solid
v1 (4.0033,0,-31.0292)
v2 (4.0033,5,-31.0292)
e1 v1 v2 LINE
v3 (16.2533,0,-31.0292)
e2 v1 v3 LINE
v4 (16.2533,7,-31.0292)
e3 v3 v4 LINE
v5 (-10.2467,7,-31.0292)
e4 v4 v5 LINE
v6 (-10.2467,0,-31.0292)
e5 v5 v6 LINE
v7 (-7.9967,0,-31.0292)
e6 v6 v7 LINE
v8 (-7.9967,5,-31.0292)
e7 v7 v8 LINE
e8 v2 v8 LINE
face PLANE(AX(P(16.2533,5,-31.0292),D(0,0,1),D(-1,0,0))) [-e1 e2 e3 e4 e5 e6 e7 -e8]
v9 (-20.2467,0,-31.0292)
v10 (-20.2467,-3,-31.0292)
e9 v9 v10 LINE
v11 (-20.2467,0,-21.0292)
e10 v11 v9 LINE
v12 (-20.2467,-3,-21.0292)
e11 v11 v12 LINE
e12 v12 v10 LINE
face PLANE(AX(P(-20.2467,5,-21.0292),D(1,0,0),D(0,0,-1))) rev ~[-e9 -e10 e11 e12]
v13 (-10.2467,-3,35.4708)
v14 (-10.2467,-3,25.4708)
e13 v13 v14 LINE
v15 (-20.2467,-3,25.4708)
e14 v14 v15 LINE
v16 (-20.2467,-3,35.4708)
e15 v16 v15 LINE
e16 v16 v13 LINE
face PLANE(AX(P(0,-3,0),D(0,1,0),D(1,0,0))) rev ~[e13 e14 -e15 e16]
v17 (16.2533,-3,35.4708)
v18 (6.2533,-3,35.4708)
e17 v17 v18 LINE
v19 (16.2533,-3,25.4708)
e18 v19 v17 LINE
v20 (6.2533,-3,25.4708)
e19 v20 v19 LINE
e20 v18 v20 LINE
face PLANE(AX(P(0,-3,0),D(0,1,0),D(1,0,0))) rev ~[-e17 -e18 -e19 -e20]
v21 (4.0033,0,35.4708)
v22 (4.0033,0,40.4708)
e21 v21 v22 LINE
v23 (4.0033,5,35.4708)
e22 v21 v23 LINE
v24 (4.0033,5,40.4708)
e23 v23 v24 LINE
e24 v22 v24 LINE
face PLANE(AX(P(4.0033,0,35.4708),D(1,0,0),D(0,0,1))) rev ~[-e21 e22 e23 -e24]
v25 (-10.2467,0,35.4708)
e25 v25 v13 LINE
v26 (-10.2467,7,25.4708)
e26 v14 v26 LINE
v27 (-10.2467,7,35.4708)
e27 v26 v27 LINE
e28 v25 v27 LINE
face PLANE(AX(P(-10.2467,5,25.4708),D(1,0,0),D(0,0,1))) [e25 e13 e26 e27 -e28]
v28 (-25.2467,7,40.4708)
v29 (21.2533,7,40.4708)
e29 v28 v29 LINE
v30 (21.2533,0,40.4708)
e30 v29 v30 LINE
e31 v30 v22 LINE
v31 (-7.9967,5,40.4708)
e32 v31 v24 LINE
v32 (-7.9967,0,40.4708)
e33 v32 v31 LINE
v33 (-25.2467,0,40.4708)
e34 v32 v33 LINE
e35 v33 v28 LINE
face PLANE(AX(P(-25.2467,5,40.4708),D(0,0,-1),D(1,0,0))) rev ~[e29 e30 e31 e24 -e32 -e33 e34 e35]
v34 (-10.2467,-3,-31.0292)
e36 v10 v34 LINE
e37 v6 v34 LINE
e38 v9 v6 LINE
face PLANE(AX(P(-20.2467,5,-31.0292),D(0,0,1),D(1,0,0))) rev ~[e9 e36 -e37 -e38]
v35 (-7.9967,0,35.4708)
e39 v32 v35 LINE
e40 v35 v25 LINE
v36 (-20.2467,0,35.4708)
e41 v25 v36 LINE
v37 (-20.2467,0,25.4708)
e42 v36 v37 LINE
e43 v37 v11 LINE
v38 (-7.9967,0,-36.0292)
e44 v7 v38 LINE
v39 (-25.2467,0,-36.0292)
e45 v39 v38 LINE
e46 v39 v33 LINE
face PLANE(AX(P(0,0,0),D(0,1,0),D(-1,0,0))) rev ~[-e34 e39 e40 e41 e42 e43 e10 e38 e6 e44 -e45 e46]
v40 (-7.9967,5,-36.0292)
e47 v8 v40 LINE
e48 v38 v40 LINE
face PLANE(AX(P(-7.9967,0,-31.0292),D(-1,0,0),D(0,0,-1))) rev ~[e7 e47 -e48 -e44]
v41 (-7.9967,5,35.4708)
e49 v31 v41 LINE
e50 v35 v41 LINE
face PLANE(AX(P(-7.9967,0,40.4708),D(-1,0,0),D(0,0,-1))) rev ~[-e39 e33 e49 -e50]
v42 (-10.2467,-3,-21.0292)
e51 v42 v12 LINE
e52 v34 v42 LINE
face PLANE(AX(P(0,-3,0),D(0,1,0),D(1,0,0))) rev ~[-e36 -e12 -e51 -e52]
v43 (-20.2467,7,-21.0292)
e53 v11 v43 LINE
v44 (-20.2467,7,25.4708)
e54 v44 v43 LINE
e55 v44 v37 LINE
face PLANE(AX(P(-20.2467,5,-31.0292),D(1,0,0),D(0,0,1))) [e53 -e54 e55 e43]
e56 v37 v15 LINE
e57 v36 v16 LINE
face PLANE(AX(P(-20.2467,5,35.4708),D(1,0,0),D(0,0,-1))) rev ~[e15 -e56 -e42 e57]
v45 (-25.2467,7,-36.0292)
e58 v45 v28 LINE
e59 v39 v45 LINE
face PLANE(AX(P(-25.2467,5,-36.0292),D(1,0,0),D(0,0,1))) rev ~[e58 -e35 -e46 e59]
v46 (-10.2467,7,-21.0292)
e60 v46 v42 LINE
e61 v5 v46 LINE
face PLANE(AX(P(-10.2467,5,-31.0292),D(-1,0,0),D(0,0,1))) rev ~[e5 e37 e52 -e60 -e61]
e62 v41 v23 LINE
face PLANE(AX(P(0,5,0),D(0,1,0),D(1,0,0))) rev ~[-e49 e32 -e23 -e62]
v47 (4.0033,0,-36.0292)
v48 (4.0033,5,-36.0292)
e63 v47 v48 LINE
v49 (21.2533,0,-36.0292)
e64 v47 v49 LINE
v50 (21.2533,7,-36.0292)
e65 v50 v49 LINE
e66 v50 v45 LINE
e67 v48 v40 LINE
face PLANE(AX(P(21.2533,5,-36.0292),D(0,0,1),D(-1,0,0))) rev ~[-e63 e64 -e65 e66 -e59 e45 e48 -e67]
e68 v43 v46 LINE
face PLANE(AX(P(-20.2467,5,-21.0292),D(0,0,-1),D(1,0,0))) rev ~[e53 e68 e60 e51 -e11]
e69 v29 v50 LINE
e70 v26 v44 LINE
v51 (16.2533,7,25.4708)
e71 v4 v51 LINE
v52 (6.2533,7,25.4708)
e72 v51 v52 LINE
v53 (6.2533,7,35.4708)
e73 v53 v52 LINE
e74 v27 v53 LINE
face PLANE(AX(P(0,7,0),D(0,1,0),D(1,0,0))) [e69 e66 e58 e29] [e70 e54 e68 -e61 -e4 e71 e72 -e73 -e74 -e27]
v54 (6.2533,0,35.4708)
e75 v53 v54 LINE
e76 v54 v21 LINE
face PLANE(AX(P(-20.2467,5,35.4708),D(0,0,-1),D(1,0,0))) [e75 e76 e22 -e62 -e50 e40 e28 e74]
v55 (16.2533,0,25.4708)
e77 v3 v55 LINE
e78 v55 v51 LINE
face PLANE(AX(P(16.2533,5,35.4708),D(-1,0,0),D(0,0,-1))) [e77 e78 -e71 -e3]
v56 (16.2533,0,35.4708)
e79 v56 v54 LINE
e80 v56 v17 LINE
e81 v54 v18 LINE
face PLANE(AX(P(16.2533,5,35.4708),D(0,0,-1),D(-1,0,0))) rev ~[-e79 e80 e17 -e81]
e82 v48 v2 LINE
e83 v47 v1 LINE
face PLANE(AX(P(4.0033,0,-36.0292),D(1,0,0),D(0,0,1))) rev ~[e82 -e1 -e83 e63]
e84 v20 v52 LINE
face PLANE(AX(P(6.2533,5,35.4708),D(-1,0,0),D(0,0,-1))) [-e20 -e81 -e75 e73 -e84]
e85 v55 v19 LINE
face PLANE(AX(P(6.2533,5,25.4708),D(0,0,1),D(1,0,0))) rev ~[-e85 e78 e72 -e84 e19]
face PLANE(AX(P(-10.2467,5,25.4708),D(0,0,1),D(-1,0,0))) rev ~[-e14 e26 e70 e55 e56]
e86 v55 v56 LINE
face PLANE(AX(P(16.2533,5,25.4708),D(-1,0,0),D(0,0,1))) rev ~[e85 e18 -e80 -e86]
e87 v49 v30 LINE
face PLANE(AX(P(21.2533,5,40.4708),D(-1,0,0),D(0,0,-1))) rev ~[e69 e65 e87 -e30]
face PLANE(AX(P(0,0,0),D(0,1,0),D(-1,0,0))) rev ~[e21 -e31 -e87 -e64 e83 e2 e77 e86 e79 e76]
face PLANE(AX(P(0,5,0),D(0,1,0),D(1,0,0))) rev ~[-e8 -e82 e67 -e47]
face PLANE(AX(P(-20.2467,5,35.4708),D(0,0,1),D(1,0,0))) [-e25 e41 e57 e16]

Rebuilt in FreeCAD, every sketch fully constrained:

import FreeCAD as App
import Part
import Sketcher
from FreeCAD import Vector
Q = App.Units.Quantity


def add_polygon(sketch, points):
    """Adds a closed chain of lines whose ends are joined by coincident constraints."""
    first, n = sketch.GeometryCount, len(points)
    for a, b in zip(points, points[1:] + points[:1]):
        sketch.addGeometry(Part.LineSegment(App.Vector(*a, 0), App.Vector(*b, 0)), False)
    for i in range(n):
        sketch.addConstraint(Sketcher.Constraint("Coincident", first + i, 2, first + (i + 1) % n, 1))

doc = App.newDocument("Part")
body = doc.addObject("PartDesign::Body", "Body")
body.AllowCompound = True

# Sketch on XZ plane
sketch1 = doc.addObject("Sketcher::SketchObject", "Sketch")
body.addObject(sketch1)
sketch1.AttachmentSupport = (doc.XZ_Plane, [""])
sketch1.MapMode = "FlatFace"
add_polygon(sketch1, [(-7.9967, -36.0292), (-25.2467, -36.0292), (-25.2467, 40.4708), (-7.9967, 40.4708), (-7.9967, 35.4708), (-20.2467, 35.4708), (-20.2467, -31.0292), (-7.9967, -31.0292)])  # lines 0-7
add_polygon(sketch1, [(21.2533, -36.0292), (4.0033, -36.0292), (4.0033, -31.0292), (16.2533, -31.0292), (16.2533, 35.4708), (4.0033, 35.4708), (4.0033, 40.4708), (21.2533, 40.4708)])  # lines 8-15
sketch1.addConstraint([
    Sketcher.Constraint("Horizontal", 0),
    Sketcher.Constraint("Vertical", 1),
    Sketcher.Constraint("Horizontal", 2),
    Sketcher.Constraint("Vertical", 3),
    Sketcher.Constraint("Horizontal", 4),
    Sketcher.Constraint("Vertical", 5),
    Sketcher.Constraint("Horizontal", 6),
    Sketcher.Constraint("Vertical", 7),
    Sketcher.Constraint("Horizontal", 8),
    Sketcher.Constraint("Vertical", 9),
    Sketcher.Constraint("Horizontal", 10),
    Sketcher.Constraint("Vertical", 11),
    Sketcher.Constraint("Horizontal", 12),
    Sketcher.Constraint("Vertical", 13),
    Sketcher.Constraint("Horizontal", 14),
    Sketcher.Constraint("Vertical", 15),
    Sketcher.Constraint("Horizontal", 7, 2, 8, 2),
    Sketcher.Constraint("Horizontal", 6, 2, 9, 2),
    Sketcher.Constraint("Horizontal", 4, 2, 11, 2),
    Sketcher.Constraint("Horizontal", 2, 2, 13, 2),
    Sketcher.Constraint("Vertical", 3, 2, 6, 2),
    Sketcher.Constraint("Vertical", 9, 2, 12, 2),
    Sketcher.Constraint("Equal", 2, 8),
    Sketcher.Constraint("Equal", 6, 10),
    Sketcher.Constraint("Equal", 3, 7),
    Sketcher.Constraint("DistanceY", 3, 2, 3, 1, Q("5 mm")),
    Sketcher.Constraint("DistanceY", 1, 1, 1, 2, Q("76.5 mm")),
    Sketcher.Constraint("DistanceX", 1, 2, 4, 2, Q("5 mm")),
    Sketcher.Constraint("DistanceX", 7, 2, 8, 2, Q("12 mm")),
    Sketcher.Constraint("DistanceX", 0, 2, 0, 1, Q("17.25 mm")),
    Sketcher.Constraint("DistanceX", 0, 2, -1, 1, Q("25.2467 mm")),
    Sketcher.Constraint("DistanceY", 0, 2, -1, 1, Q("36.0292 mm")),
])
pad1 = doc.addObject("PartDesign::Pad", "Pad")
body.addObject(pad1)
pad1.Profile = sketch1
pad1.Length = 5
pad1.Reversed = True

# Sketch on XZ plane
sketch2 = doc.addObject("Sketcher::SketchObject", "Sketch001")
body.addObject(sketch2)
sketch2.AttachmentSupport = (doc.XZ_Plane, [""])
sketch2.MapMode = "FlatFace"
sketch2.AttachmentOffset = App.Placement(Vector(0, 0, -5), App.Rotation())
add_polygon(sketch2, [(-20.2467, -31.0292), (-20.2467, -21.0292), (-10.2467, -21.0292), (-10.2467, -31.0292)])  # lines 0-3
add_polygon(sketch2, [(-20.2467, 25.4708), (-20.2467, 35.4708), (-10.2467, 35.4708), (-10.2467, 25.4708)])  # lines 4-7
add_polygon(sketch2, [(16.2533, 35.4708), (16.2533, 25.4708), (6.2533, 25.4708), (6.2533, 35.4708)])  # lines 8-11
sketch2.addConstraint([
    Sketcher.Constraint("Vertical", 0),
    Sketcher.Constraint("Horizontal", 1),
    Sketcher.Constraint("Vertical", 2),
    Sketcher.Constraint("Horizontal", 3),
    Sketcher.Constraint("Vertical", 4),
    Sketcher.Constraint("Horizontal", 5),
    Sketcher.Constraint("Vertical", 6),
    Sketcher.Constraint("Horizontal", 7),
    Sketcher.Constraint("Vertical", 8),
    Sketcher.Constraint("Horizontal", 9),
    Sketcher.Constraint("Vertical", 10),
    Sketcher.Constraint("Horizontal", 11),
    Sketcher.Constraint("Horizontal", 7, 2, 8, 2),
    Sketcher.Constraint("Horizontal", 5, 2, 10, 2),
    Sketcher.Constraint("Vertical", 3, 2, 4, 2),
    Sketcher.Constraint("Vertical", 2, 2, 5, 2),
    Sketcher.Constraint("Equal", 7, 9),
    Sketcher.Constraint("Equal", 11, 0),
    Sketcher.Constraint("Equal", 2, 4),
    Sketcher.Constraint("DistanceX", 1, 1, 1, 2, Q("10 mm")),
    Sketcher.Constraint("DistanceY", 0, 2, 4, 2, Q("56.5 mm")),
    Sketcher.Constraint("DistanceX", 6, 2, 8, 2, Q("26.5 mm")),
    Sketcher.Constraint("DistanceX", 0, 2, -1, 1, Q("20.2467 mm")),
    Sketcher.Constraint("DistanceY", 0, 2, -1, 1, Q("21.0292 mm")),
])
pad2 = doc.addObject("PartDesign::Pad", "Pad001")
body.addObject(pad2)
pad2.Profile = sketch2
pad2.Length = 8

# Sketch on XZ plane
sketch3 = doc.addObject("Sketcher::SketchObject", "Sketch002")
body.addObject(sketch3)
sketch3.AttachmentSupport = (doc.XZ_Plane, [""])
sketch3.MapMode = "FlatFace"
sketch3.AttachmentOffset = App.Placement(Vector(0, 0, -5), App.Rotation())
add_polygon(sketch3, [(21.2533, -36.0292), (-25.2467, -36.0292), (-25.2467, 40.4708), (21.2533, 40.4708)])  # lines 0-3
add_polygon(sketch3, [(-20.2467, -31.0292), (16.2533, -31.0292), (16.2533, 35.4708), (-20.2467, 35.4708)])  # lines 4-7
sketch3.addConstraint([
    Sketcher.Constraint("Horizontal", 0),
    Sketcher.Constraint("Vertical", 1),
    Sketcher.Constraint("Horizontal", 2),
    Sketcher.Constraint("Vertical", 3),
    Sketcher.Constraint("Horizontal", 4),
    Sketcher.Constraint("Vertical", 5),
    Sketcher.Constraint("Horizontal", 6),
    Sketcher.Constraint("Vertical", 7),
    Sketcher.Constraint("DistanceX", 0, 2, 0, 1, Q("46.5 mm")),
    Sketcher.Constraint("DistanceX", 4, 1, 4, 2, Q("36.5 mm")),
    Sketcher.Constraint("DistanceY", 1, 1, 1, 2, Q("76.5 mm")),
    Sketcher.Constraint("DistanceY", 5, 1, 5, 2, Q("66.5 mm")),
    Sketcher.Constraint("DistanceX", 4, 2, 3, 2, Q("5 mm")),
    Sketcher.Constraint("DistanceY", 3, 2, 4, 2, Q("5 mm")),
    Sketcher.Constraint("DistanceX", 0, 2, -1, 1, Q("25.2467 mm")),
    Sketcher.Constraint("DistanceY", 0, 2, -1, 1, Q("36.0292 mm")),
])
pad3 = doc.addObject("PartDesign::Pad", "Pad002")
body.addObject(pad3)
pad3.Profile = sketch3
pad3.Length = 2
pad3.Reversed = True

# Sketch on XZ plane
sketch4 = doc.addObject("Sketcher::SketchObject", "Sketch003")
body.addObject(sketch4)
sketch4.AttachmentSupport = (doc.XZ_Plane, [""])
sketch4.MapMode = "FlatFace"
sketch4.AttachmentOffset = App.Placement(Vector(0, 0, -5), App.Rotation())
add_polygon(sketch4, [(-10.2467, 35.4708), (-10.2467, 25.4708), (-20.2467, 25.4708), (-20.2467, 35.4708)])  # lines 0-3
add_polygon(sketch4, [(-20.2467, -31.0292), (-20.2467, -21.0292), (-10.2467, -21.0292), (-10.2467, -31.0292)])  # lines 4-7
add_polygon(sketch4, [(16.2533, 35.4708), (16.2533, 25.4708), (6.2533, 25.4708), (6.2533, 35.4708)])  # lines 8-11
sketch4.addConstraint([
    Sketcher.Constraint("Vertical", 0),
    Sketcher.Constraint("Horizontal", 1),
    Sketcher.Constraint("Vertical", 2),
    Sketcher.Constraint("Horizontal", 3),
    Sketcher.Constraint("Vertical", 4),
    Sketcher.Constraint("Horizontal", 5),
    Sketcher.Constraint("Vertical", 6),
    Sketcher.Constraint("Horizontal", 7),
    Sketcher.Constraint("Vertical", 8),
    Sketcher.Constraint("Horizontal", 9),
    Sketcher.Constraint("Vertical", 10),
    Sketcher.Constraint("Horizontal", 11),
    Sketcher.Constraint("Horizontal", 1, 2, 8, 2),
    Sketcher.Constraint("Horizontal", 3, 2, 10, 2),
    Sketcher.Constraint("Vertical", 2, 2, 4, 2),
    Sketcher.Constraint("Vertical", 3, 2, 5, 2),
    Sketcher.Constraint("Equal", 7, 9),
    Sketcher.Constraint("Equal", 11, 0),
    Sketcher.Constraint("Equal", 2, 4),
    Sketcher.Constraint("DistanceX", 1, 2, 1, 1, Q("10 mm")),
    Sketcher.Constraint("DistanceY", 4, 2, 1, 2, Q("46.5 mm")),
    Sketcher.Constraint("DistanceX", 0, 2, 8, 2, Q("26.5 mm")),
    Sketcher.Constraint("DistanceX", 0, 2, -1, 1, Q("10.2467 mm")),
    Sketcher.Constraint("DistanceY", -1, 1, 0, 2, Q("25.4708 mm")),
])
pad4 = doc.addObject("PartDesign::Pad", "Pad003")
body.addObject(pad4)
pad4.Profile = sketch4
pad4.Length = 2
pad4.Reversed = True

doc.recompute()
